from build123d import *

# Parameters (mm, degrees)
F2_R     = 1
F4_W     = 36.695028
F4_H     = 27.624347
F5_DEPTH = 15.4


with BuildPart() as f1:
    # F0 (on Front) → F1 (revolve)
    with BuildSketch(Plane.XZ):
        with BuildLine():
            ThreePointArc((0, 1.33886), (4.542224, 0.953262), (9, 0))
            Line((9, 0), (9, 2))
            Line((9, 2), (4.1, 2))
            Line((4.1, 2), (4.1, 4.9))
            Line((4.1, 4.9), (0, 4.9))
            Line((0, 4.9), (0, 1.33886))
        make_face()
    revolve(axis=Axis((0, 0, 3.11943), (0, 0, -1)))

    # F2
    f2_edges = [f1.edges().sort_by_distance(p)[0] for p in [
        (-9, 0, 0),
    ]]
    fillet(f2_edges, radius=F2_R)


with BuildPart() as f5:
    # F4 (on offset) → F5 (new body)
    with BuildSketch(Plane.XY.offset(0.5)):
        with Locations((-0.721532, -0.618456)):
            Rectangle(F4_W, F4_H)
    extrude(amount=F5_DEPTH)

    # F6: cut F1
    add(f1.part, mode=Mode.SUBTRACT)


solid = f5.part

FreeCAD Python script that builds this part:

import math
import FreeCAD as App
import Part
import Sketcher

V = App.Vector


def edges_at(feature, points):
    """Names of the edges that pass closest to the given points."""
    edges = feature.Shape.Edges
    near = lambda p: min(range(len(edges)), key=lambda i: edges[i].distToShape(Part.Vertex(*p))[0])
    return sorted({f"Edge{near(p) + 1}" for p in points})


def add_polygon(sketch, points):
    """Adds a closed chain of lines whose ends are joined by coincident constraints."""
    first, n = sketch.GeometryCount, len(points)
    for a, b in zip(points, points[1:] + points[:1]):
        sketch.addGeometry(Part.LineSegment(App.Vector(*a, 0), App.Vector(*b, 0)), False)
    for i in range(n):
        sketch.addConstraint(Sketcher.Constraint("Coincident", first + i, 2, first + (i + 1) % n, 1))

doc = App.newDocument("Part")
body = doc.addObject("PartDesign::Body", "Body")

# Sketch on XZ plane
sketch1 = body.newObject("Sketcher::SketchObject", "Sketch")
sketch1.AttachmentSupport = (doc.getObject("XZ_Plane"), [""])
sketch1.MapMode = "FlatFace"
sketch1.addGeometry([
    Part.ArcOfCircle(Part.Circle(V(-0.785609, -34.861155, 0), V(0, 0, 1), 36.208539), math.radians(74.320443), math.radians(88.756768)),  # 0
    Part.LineSegment(V(9, 0, 0), V(9, 2, 0)),  # 1
    Part.LineSegment(V(9, 2, 0), V(4.1, 2, 0)),  # 2
    Part.LineSegment(V(4.1, 2, 0), V(4.1, 4.9, 0)),  # 3
    Part.LineSegment(V(4.1, 4.9, 0), V(0, 4.9, 0)),  # 4
    Part.LineSegment(V(0, 4.9, 0), V(0, 1.33886, 0)),  # 5
], False)
sketch1.addConstraint([
    Sketcher.Constraint("Coincident", 0, 1, 1, 1),
    Sketcher.Constraint("Coincident", 1, 2, 2, 1),
    Sketcher.Constraint("Coincident", 2, 2, 3, 1),
    Sketcher.Constraint("Coincident", 3, 2, 4, 1),
    Sketcher.Constraint("Coincident", 4, 2, 5, 1),
    Sketcher.Constraint("Coincident", 5, 2, 0, 2),
    Sketcher.Constraint("Vertical", 1),
    Sketcher.Constraint("Horizontal", 2),
    Sketcher.Constraint("Vertical", 3),
    Sketcher.Constraint("Horizontal", 4),
    Sketcher.Constraint("Vertical", 5),
    Sketcher.Constraint("PointOnObject", 0, 1, -1),
    Sketcher.Constraint("PointOnObject", 4, 2, -2),
    Sketcher.Constraint("DistanceY", 1, 1, 1, 2, 2.0),
    Sketcher.Constraint("DistanceX", 2, 2, 2, 1, 4.9),
    Sketcher.Constraint("DistanceX", 4, 2, 4, 1, 4.1),
    Sketcher.Constraint("DistanceY", 3, 1, 3, 2, 2.9),
    Sketcher.Constraint("Radius", 0, 36.208539),
    Sketcher.Constraint("DistanceY", 5, 2, 5, 1, 3.56114),
])
revolution = body.newObject("PartDesign::Revolution", "Revolution")
revolution.Profile = sketch1
revolution.ReferenceAxis = (sketch1, ["V_Axis"])
revolution.Angle = 360
doc.recompute()

fillet = body.newObject("PartDesign::Fillet", "Fillet")
fillet.Base = (revolution, edges_at(revolution, [(-9, 0, 0)]))
fillet.Radius = 1
body2 = doc.addObject("PartDesign::Body", "Body001")
body2.AllowCompound = True

# Sketch on XY plane
sketch2 = body2.newObject("Sketcher::SketchObject", "Sketch001")
sketch2.AttachmentSupport = (doc.getObject("XY_Plane001"), [""])
sketch2.MapMode = "FlatFace"
sketch2.AttachmentOffset = App.Placement(V(0, 0, 0.5), App.Rotation())
add_polygon(sketch2, [(-19.069046, 13.193717), (-19.069046, -14.43063), (17.625982, -14.43063), (17.625982, 13.193717)])  # lines 0-3
sketch2.addConstraint([
    Sketcher.Constraint("Vertical", 0),
    Sketcher.Constraint("Horizontal", 1),
    Sketcher.Constraint("Vertical", 2),
    Sketcher.Constraint("Horizontal", 3),
    Sketcher.Constraint("DistanceX", 1, 1, 1, 2, 36.695028),
    Sketcher.Constraint("DistanceY", 0, 2, 0, 1, 27.624347),
    Sketcher.Constraint("DistanceY", 0, 2, -1, 1, 14.43063),
    Sketcher.Constraint("DistanceX", 0, 2, -1, 1, 19.069046),
])
pad1 = body2.newObject("PartDesign::Pad", "Pad")
pad1.Profile = sketch2
pad1.Length = 15.4
doc.recompute()

boolean = body2.newObject("PartDesign::Boolean", "Boolean")
boolean.Type = "Cut"
boolean.addObjects([body])

doc.recompute()
